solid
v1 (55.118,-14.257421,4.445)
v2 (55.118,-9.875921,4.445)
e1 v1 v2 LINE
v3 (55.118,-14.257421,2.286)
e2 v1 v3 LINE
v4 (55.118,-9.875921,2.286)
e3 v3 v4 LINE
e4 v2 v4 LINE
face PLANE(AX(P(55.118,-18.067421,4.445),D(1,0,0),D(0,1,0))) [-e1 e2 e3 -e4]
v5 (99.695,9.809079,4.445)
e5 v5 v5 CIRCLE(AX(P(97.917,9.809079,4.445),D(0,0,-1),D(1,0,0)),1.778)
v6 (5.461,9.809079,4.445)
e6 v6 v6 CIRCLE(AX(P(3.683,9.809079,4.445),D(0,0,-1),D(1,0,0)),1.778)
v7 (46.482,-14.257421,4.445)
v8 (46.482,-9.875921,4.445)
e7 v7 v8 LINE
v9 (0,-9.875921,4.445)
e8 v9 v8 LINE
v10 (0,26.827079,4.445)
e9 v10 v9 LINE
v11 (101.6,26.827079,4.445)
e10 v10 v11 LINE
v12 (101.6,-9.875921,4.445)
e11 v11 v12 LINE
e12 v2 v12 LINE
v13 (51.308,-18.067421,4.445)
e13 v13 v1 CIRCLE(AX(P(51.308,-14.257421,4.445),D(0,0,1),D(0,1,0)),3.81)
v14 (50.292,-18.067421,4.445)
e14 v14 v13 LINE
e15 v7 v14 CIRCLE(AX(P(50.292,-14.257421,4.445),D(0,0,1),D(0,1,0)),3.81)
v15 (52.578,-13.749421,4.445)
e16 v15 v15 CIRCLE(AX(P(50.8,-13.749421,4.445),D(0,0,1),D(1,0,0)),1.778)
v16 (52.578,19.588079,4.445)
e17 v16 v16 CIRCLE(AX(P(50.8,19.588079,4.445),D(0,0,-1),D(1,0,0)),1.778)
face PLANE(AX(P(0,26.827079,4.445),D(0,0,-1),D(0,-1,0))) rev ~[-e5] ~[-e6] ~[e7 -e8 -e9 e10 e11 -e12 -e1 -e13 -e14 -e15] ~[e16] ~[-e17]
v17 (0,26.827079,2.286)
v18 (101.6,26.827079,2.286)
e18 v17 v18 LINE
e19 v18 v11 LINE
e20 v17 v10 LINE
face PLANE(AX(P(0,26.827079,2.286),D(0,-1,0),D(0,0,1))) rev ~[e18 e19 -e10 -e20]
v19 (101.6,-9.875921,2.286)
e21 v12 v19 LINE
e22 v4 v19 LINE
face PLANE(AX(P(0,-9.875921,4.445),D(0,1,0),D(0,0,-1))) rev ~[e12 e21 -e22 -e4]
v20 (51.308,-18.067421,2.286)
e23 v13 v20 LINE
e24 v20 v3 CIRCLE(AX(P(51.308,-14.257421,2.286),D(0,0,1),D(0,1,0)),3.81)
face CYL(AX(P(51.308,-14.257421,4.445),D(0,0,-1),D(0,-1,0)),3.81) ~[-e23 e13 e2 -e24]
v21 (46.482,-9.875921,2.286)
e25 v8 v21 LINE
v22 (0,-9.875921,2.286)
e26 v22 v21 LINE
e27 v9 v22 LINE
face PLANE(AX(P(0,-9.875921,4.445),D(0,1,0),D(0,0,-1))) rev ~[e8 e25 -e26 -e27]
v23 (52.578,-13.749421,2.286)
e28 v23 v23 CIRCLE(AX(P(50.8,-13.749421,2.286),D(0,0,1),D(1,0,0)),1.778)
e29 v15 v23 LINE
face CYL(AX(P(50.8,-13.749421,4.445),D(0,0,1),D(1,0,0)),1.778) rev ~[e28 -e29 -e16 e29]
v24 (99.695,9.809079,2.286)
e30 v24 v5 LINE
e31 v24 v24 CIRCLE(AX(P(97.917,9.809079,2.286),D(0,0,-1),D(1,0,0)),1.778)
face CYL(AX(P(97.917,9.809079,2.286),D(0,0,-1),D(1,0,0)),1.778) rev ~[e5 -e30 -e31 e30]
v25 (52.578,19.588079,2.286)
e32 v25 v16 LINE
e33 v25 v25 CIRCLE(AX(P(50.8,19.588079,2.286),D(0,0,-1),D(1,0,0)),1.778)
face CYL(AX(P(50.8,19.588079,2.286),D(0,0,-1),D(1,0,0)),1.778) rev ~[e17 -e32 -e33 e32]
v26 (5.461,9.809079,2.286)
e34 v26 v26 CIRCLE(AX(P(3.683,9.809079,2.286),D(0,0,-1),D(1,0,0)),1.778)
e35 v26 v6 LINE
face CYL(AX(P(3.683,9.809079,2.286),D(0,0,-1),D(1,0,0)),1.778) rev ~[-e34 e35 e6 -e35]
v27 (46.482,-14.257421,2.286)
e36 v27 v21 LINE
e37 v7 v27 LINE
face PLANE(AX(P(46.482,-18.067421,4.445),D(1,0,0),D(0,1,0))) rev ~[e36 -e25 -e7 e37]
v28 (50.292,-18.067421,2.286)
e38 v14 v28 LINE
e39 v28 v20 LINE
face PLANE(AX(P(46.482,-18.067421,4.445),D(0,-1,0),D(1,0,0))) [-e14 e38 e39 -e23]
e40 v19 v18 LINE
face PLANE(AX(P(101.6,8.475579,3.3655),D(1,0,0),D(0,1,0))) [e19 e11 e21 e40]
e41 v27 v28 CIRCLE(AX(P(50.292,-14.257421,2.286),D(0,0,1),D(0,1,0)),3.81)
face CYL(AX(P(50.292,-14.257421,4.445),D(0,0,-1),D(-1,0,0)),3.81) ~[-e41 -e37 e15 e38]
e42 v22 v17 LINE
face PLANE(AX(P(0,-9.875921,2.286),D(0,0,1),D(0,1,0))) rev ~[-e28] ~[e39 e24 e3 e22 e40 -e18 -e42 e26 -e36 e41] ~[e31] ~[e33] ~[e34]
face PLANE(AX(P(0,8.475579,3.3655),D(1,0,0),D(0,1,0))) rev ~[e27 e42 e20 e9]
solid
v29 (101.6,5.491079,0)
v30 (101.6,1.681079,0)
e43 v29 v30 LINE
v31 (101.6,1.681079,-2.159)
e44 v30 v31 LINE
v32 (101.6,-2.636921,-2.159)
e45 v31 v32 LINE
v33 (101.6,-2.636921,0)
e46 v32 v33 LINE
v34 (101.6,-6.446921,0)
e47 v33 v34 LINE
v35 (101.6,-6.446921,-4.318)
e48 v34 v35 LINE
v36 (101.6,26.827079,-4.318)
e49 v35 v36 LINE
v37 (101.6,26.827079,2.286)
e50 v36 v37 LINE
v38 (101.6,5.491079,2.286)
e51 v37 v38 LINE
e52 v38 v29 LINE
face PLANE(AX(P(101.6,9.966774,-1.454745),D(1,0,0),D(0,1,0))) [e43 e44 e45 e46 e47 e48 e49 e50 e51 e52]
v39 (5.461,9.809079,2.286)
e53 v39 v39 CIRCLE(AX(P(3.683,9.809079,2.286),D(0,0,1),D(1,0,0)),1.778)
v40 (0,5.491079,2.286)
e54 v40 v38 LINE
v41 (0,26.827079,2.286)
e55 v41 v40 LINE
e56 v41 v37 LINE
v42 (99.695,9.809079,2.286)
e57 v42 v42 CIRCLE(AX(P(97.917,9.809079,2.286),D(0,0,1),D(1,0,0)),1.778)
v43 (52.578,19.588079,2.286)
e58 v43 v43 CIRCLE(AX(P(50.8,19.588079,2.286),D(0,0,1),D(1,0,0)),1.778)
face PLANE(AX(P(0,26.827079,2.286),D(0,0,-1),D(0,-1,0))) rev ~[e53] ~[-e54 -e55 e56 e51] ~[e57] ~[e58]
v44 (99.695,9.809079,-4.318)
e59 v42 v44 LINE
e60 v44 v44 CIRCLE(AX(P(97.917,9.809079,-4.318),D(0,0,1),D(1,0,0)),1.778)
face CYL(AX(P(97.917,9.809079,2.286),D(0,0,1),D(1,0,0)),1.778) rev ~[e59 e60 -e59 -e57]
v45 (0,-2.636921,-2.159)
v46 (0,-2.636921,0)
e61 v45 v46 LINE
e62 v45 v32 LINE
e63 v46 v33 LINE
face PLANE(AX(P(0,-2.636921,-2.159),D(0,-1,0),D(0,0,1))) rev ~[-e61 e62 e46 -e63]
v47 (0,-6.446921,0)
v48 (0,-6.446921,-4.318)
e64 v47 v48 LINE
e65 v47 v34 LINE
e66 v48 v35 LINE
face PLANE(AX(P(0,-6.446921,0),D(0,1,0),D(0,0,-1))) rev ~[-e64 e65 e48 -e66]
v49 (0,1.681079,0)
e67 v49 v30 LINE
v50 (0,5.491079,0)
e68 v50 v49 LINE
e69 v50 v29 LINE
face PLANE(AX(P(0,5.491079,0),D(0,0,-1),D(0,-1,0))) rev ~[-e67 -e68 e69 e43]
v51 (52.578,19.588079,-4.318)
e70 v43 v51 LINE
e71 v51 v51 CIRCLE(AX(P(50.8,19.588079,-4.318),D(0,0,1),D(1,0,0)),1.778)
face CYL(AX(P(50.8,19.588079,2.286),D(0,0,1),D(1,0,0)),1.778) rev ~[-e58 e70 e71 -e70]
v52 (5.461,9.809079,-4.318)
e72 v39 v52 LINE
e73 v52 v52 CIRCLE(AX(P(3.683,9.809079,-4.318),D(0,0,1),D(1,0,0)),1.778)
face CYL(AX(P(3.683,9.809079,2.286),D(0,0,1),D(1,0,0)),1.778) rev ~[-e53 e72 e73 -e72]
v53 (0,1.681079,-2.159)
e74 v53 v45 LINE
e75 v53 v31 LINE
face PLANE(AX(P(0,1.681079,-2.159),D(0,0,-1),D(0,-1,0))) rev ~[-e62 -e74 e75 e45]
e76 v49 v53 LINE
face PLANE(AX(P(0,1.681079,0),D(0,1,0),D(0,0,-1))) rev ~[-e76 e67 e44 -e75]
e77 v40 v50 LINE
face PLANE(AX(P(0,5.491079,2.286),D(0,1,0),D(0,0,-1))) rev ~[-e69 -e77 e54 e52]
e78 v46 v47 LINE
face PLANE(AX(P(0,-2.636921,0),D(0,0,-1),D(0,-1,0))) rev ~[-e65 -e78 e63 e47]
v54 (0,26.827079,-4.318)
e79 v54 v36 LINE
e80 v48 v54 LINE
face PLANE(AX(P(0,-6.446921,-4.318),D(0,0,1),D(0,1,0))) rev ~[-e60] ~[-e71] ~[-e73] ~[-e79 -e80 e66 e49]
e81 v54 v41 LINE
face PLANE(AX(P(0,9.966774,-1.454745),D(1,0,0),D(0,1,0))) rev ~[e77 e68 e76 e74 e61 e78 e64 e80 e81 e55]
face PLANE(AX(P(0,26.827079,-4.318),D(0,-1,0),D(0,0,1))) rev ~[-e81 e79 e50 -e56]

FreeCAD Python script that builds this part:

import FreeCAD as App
import Part
import Sketcher

V = App.Vector
Q = App.Units.Quantity


def edges_at(feature, points):
    """Names of the edges that pass closest to the given points."""
    edges = feature.Shape.Edges
    near = lambda p: min(range(len(edges)), key=lambda i: edges[i].distToShape(Part.Vertex(*p))[0])
    return sorted({f"Edge{near(p) + 1}" for p in points})


def add_polygon(sketch, points):
    """Adds a closed chain of lines whose ends are joined by coincident constraints."""
    first, n = sketch.GeometryCount, len(points)
    for a, b in zip(points, points[1:] + points[:1]):
        sketch.addGeometry(Part.LineSegment(App.Vector(*a, 0), App.Vector(*b, 0)), False)
    for i in range(n):
        sketch.addConstraint(Sketcher.Constraint("Coincident", first + i, 2, first + (i + 1) % n, 1))

doc = App.newDocument("Part")
body = doc.addObject("PartDesign::Body", "Body")

# Sketch on YZ plane
sketch1 = body.newObject("Sketcher::SketchObject", "Sketch")
sketch1.AttachmentSupport = (doc.getObject("YZ_Plane"), [""])
sketch1.MapMode = "FlatFace"
add_polygon(sketch1, [(-6.446921, 0), (-6.446921, -4.318), (26.827079, -4.318), (26.827079, 2.286), (5.491079, 2.286), (5.491079, 0), (1.681079, 0), (1.681079, -2.159), (-2.636921, -2.159), (-2.636921, 0)])  # lines 0-9
sketch1.addConstraint(Sketcher.Constraint("Vertical", 0))
sketch1.addConstraint(Sketcher.Constraint("Horizontal", 1))
sketch1.addConstraint(Sketcher.Constraint("Vertical", 2))
sketch1.addConstraint(Sketcher.Constraint("Horizontal", 3))
sketch1.addConstraint(Sketcher.Constraint("Vertical", 4))
sketch1.addConstraint(Sketcher.Constraint("Horizontal", 5))
sketch1.addConstraint(Sketcher.Constraint("Vertical", 6))
sketch1.addConstraint(Sketcher.Constraint("Horizontal", 7))
sketch1.addConstraint(Sketcher.Constraint("Vertical", 8))
sketch1.addConstraint(Sketcher.Constraint("Horizontal", 9))
sketch1.addConstraint(Sketcher.Constraint("PointOnObject", 4, 2, -1))
sketch1.addConstraint(Sketcher.Constraint("PointOnObject", 8, 2, -1))
sketch1.addConstraint(Sketcher.Constraint("Equal", 5, 9))
sketch1.addConstraint(Sketcher.Constraint("Equal", 7, 0))
sketch1.addConstraint(Sketcher.Constraint("DistanceX", 1, 1, 1, 2, Q("1.31 in")))
sketch1.addConstraint(Sketcher.Constraint("DistanceX", 3, 2, 3, 1, Q("0.84 in")))
sketch1.addConstraint(Sketcher.Constraint("DistanceX", 5, 2, 5, 1, Q("0.15 in")))
sketch1.addConstraint(Sketcher.Constraint("DistanceY", 2, 1, 2, 2, Q("0.26 in")))
sketch1.addConstraint(Sketcher.Constraint("DistanceY", 6, 2, 6, 1, Q("0.085 in")))
sketch1.addConstraint(Sketcher.Constraint("DistanceX", 0, 2, -1, 1, 6.446921))
pad1 = body.newObject("PartDesign::Pad", "Pad")
pad1.Profile = sketch1
pad1.Length = Q("4 in")

# Sketch on XY plane
sketch2 = body.newObject("Sketcher::SketchObject", "Sketch001")
sketch2.AttachmentSupport = (doc.getObject("XY_Plane"), [""])
sketch2.MapMode = "FlatFace"
sketch2.AttachmentOffset = App.Placement(V(0, 0, 0.09 * 25.4), App.Rotation())
sketch2.addGeometry(Part.Circle(V(97.917, 9.809079, 0), V(0, 0, 1), 1.778), False)
sketch2.addGeometry(Part.Circle(V(3.683, 9.809079, 0), V(0, 0, 1), 1.778), False)
sketch2.addGeometry(Part.Circle(V(50.8, 19.588079, 0), V(0, 0, 1), 1.778), False)
sketch2.addConstraint(Sketcher.Constraint("Equal", 0, 1))
sketch2.addConstraint(Sketcher.Constraint("Equal", 1, 2))
sketch2.addConstraint(Sketcher.Constraint("Horizontal", 0, 3, 1, 3))
sketch2.addConstraint(Sketcher.Constraint("Diameter", 0, Q("0.14 in")))
sketch2.addConstraint(Sketcher.Constraint("DistanceX", -1, 1, 2, 3, Q("2 in")))
sketch2.addConstraint(Sketcher.Constraint("DistanceX", 1, 3, 0, 3, Q("3.71 in")))
sketch2.addConstraint(Sketcher.Constraint("DistanceX", -1, 1, 0, 3, Q("3.855 in")))
sketch2.addConstraint(Sketcher.Constraint("DistanceY", 1, 3, 2, 3, Q("0.385 in")))
sketch2.addConstraint(Sketcher.Constraint("DistanceY", -1, 1, 0, 3, 9.809079))
pocket1 = body.newObject("PartDesign::Pocket", "Pocket")
pocket1.Profile = sketch2
pocket1.Type = "ThroughAll"
body2 = doc.addObject("PartDesign::Body", "Body001")

# Sketch on YZ plane
sketch3 = body2.newObject("Sketcher::SketchObject", "Sketch002")
sketch3.AttachmentSupport = (doc.getObject("YZ_Plane001"), [""])
sketch3.MapMode = "FlatFace"
add_polygon(sketch3, [(-9.875921, 4.445), (-9.875921, 2.286), (26.827079, 2.286), (26.827079, 4.445)])  # lines 0-3
sketch3.addConstraint(Sketcher.Constraint("Vertical", 0))
sketch3.addConstraint(Sketcher.Constraint("Horizontal", 1))
sketch3.addConstraint(Sketcher.Constraint("Vertical", 2))
sketch3.addConstraint(Sketcher.Constraint("Horizontal", 3))
sketch3.addConstraint(Sketcher.Constraint("DistanceX", 1, 1, 1, 2, Q("1.445 in")))
sketch3.addConstraint(Sketcher.Constraint("DistanceY", 0, 2, 0, 1, Q("0.085 in")))
sketch3.addConstraint(Sketcher.Constraint("DistanceY", -1, 1, 0, 2, Q("0.09 in")))
sketch3.addConstraint(Sketcher.Constraint("DistanceX", 0, 2, -1, 1, 9.875921))
pad2 = body2.newObject("PartDesign::Pad", "Pad001")
pad2.Profile = sketch3
pad2.Length = Q("4 in")

# Sketch on XY plane
sketch4 = body2.newObject("Sketcher::SketchObject", "Sketch003")
sketch4.AttachmentSupport = (doc.getObject("XY_Plane001"), [""])
sketch4.MapMode = "FlatFace"
sketch4.AttachmentOffset = App.Placement(V(0, 0, 0.09 * 25.4), App.Rotation())
sketch4.addGeometry(Part.Circle(V(97.917, 9.809079, 0), V(0, 0, 1), 1.778), False)
sketch4.addGeometry(Part.Circle(V(3.683, 9.809079, 0), V(0, 0, 1), 1.778), False)
sketch4.addGeometry(Part.Circle(V(50.8, 19.588079, 0), V(0, 0, 1), 1.778), False)
sketch4.addConstraint(Sketcher.Constraint("Equal", 0, 1))
sketch4.addConstraint(Sketcher.Constraint("Equal", 1, 2))
sketch4.addConstraint(Sketcher.Constraint("Horizontal", 0, 3, 1, 3))
sketch4.addConstraint(Sketcher.Constraint("Diameter", 0, Q("0.14 in")))
sketch4.addConstraint(Sketcher.Constraint("DistanceX", -1, 1, 2, 3, Q("2 in")))
sketch4.addConstraint(Sketcher.Constraint("DistanceX", 1, 3, 0, 3, Q("3.71 in")))
sketch4.addConstraint(Sketcher.Constraint("DistanceX", -1, 1, 0, 3, Q("3.855 in")))
sketch4.addConstraint(Sketcher.Constraint("DistanceY", 1, 3, 2, 3, Q("0.385 in")))
sketch4.addConstraint(Sketcher.Constraint("DistanceY", -1, 1, 0, 3, 9.809079))
pocket2 = body2.newObject("PartDesign::Pocket", "Pocket001")
pocket2.Profile = sketch4
pocket2.Type = "ThroughAll"
pocket2.Reversed = True

# Sketch on XY plane
sketch5 = body2.newObject("Sketcher::SketchObject", "Sketch004")
sketch5.AttachmentSupport = (doc.getObject("XY_Plane001"), [""])
sketch5.MapMode = "FlatFace"
sketch5.AttachmentOffset = App.Placement(V(0, 0, 0.175 * 25.4), App.Rotation())
add_polygon(sketch5, [(46.482, -9.875921), (46.482, -18.067421), (55.118, -18.067421), (55.118, -9.875921)])  # lines 0-3
sketch5.addGeometry(Part.Circle(V(50.8, -13.749421, 0), V(0, 0, 1), 1.778), False)  # 4
sketch5.addConstraint(Sketcher.Constraint("Vertical", 0))
sketch5.addConstraint(Sketcher.Constraint("Horizontal", 1))
sketch5.addConstraint(Sketcher.Constraint("Vertical", 2))
sketch5.addConstraint(Sketcher.Constraint("Horizontal", 3))
sketch5.addConstraint(Sketcher.Constraint("Diameter", 4, Q("0.14 in")))
sketch5.addConstraint(Sketcher.Constraint("DistanceX", -1, 1, 4, 3, Q("2 in")))
sketch5.addConstraint(Sketcher.Constraint("DistanceX", 1, 1, 1, 2, Q("0.34 in")))
sketch5.addConstraint(Sketcher.Constraint("DistanceX", -1, 1, 0, 2, Q("1.83 in")))
sketch5.addConstraint(Sketcher.Constraint("DistanceY", 0, 2, 4, 3, Q("0.17 in")))
sketch5.addConstraint(Sketcher.Constraint("DistanceY", 0, 2, 0, 1, Q("0.3225 in")))
sketch5.addConstraint(Sketcher.Constraint("DistanceY", 4, 3, -1, 1, 13.749421))
pad3 = body2.newObject("PartDesign::Pad", "Pad002")
pad3.Profile = sketch5
pad3.Length = Q("0.085 in")
pad3.Reversed = True
doc.recompute()

fillet = body2.newObject("PartDesign::Fillet", "Fillet")
fillet.Base = (pad3, edges_at(pad3, [(55.118, -18.067, 3.365), (46.482, -18.067, 3.365)]))
fillet.Radius = Q("0.15 in")

doc.recompute()
